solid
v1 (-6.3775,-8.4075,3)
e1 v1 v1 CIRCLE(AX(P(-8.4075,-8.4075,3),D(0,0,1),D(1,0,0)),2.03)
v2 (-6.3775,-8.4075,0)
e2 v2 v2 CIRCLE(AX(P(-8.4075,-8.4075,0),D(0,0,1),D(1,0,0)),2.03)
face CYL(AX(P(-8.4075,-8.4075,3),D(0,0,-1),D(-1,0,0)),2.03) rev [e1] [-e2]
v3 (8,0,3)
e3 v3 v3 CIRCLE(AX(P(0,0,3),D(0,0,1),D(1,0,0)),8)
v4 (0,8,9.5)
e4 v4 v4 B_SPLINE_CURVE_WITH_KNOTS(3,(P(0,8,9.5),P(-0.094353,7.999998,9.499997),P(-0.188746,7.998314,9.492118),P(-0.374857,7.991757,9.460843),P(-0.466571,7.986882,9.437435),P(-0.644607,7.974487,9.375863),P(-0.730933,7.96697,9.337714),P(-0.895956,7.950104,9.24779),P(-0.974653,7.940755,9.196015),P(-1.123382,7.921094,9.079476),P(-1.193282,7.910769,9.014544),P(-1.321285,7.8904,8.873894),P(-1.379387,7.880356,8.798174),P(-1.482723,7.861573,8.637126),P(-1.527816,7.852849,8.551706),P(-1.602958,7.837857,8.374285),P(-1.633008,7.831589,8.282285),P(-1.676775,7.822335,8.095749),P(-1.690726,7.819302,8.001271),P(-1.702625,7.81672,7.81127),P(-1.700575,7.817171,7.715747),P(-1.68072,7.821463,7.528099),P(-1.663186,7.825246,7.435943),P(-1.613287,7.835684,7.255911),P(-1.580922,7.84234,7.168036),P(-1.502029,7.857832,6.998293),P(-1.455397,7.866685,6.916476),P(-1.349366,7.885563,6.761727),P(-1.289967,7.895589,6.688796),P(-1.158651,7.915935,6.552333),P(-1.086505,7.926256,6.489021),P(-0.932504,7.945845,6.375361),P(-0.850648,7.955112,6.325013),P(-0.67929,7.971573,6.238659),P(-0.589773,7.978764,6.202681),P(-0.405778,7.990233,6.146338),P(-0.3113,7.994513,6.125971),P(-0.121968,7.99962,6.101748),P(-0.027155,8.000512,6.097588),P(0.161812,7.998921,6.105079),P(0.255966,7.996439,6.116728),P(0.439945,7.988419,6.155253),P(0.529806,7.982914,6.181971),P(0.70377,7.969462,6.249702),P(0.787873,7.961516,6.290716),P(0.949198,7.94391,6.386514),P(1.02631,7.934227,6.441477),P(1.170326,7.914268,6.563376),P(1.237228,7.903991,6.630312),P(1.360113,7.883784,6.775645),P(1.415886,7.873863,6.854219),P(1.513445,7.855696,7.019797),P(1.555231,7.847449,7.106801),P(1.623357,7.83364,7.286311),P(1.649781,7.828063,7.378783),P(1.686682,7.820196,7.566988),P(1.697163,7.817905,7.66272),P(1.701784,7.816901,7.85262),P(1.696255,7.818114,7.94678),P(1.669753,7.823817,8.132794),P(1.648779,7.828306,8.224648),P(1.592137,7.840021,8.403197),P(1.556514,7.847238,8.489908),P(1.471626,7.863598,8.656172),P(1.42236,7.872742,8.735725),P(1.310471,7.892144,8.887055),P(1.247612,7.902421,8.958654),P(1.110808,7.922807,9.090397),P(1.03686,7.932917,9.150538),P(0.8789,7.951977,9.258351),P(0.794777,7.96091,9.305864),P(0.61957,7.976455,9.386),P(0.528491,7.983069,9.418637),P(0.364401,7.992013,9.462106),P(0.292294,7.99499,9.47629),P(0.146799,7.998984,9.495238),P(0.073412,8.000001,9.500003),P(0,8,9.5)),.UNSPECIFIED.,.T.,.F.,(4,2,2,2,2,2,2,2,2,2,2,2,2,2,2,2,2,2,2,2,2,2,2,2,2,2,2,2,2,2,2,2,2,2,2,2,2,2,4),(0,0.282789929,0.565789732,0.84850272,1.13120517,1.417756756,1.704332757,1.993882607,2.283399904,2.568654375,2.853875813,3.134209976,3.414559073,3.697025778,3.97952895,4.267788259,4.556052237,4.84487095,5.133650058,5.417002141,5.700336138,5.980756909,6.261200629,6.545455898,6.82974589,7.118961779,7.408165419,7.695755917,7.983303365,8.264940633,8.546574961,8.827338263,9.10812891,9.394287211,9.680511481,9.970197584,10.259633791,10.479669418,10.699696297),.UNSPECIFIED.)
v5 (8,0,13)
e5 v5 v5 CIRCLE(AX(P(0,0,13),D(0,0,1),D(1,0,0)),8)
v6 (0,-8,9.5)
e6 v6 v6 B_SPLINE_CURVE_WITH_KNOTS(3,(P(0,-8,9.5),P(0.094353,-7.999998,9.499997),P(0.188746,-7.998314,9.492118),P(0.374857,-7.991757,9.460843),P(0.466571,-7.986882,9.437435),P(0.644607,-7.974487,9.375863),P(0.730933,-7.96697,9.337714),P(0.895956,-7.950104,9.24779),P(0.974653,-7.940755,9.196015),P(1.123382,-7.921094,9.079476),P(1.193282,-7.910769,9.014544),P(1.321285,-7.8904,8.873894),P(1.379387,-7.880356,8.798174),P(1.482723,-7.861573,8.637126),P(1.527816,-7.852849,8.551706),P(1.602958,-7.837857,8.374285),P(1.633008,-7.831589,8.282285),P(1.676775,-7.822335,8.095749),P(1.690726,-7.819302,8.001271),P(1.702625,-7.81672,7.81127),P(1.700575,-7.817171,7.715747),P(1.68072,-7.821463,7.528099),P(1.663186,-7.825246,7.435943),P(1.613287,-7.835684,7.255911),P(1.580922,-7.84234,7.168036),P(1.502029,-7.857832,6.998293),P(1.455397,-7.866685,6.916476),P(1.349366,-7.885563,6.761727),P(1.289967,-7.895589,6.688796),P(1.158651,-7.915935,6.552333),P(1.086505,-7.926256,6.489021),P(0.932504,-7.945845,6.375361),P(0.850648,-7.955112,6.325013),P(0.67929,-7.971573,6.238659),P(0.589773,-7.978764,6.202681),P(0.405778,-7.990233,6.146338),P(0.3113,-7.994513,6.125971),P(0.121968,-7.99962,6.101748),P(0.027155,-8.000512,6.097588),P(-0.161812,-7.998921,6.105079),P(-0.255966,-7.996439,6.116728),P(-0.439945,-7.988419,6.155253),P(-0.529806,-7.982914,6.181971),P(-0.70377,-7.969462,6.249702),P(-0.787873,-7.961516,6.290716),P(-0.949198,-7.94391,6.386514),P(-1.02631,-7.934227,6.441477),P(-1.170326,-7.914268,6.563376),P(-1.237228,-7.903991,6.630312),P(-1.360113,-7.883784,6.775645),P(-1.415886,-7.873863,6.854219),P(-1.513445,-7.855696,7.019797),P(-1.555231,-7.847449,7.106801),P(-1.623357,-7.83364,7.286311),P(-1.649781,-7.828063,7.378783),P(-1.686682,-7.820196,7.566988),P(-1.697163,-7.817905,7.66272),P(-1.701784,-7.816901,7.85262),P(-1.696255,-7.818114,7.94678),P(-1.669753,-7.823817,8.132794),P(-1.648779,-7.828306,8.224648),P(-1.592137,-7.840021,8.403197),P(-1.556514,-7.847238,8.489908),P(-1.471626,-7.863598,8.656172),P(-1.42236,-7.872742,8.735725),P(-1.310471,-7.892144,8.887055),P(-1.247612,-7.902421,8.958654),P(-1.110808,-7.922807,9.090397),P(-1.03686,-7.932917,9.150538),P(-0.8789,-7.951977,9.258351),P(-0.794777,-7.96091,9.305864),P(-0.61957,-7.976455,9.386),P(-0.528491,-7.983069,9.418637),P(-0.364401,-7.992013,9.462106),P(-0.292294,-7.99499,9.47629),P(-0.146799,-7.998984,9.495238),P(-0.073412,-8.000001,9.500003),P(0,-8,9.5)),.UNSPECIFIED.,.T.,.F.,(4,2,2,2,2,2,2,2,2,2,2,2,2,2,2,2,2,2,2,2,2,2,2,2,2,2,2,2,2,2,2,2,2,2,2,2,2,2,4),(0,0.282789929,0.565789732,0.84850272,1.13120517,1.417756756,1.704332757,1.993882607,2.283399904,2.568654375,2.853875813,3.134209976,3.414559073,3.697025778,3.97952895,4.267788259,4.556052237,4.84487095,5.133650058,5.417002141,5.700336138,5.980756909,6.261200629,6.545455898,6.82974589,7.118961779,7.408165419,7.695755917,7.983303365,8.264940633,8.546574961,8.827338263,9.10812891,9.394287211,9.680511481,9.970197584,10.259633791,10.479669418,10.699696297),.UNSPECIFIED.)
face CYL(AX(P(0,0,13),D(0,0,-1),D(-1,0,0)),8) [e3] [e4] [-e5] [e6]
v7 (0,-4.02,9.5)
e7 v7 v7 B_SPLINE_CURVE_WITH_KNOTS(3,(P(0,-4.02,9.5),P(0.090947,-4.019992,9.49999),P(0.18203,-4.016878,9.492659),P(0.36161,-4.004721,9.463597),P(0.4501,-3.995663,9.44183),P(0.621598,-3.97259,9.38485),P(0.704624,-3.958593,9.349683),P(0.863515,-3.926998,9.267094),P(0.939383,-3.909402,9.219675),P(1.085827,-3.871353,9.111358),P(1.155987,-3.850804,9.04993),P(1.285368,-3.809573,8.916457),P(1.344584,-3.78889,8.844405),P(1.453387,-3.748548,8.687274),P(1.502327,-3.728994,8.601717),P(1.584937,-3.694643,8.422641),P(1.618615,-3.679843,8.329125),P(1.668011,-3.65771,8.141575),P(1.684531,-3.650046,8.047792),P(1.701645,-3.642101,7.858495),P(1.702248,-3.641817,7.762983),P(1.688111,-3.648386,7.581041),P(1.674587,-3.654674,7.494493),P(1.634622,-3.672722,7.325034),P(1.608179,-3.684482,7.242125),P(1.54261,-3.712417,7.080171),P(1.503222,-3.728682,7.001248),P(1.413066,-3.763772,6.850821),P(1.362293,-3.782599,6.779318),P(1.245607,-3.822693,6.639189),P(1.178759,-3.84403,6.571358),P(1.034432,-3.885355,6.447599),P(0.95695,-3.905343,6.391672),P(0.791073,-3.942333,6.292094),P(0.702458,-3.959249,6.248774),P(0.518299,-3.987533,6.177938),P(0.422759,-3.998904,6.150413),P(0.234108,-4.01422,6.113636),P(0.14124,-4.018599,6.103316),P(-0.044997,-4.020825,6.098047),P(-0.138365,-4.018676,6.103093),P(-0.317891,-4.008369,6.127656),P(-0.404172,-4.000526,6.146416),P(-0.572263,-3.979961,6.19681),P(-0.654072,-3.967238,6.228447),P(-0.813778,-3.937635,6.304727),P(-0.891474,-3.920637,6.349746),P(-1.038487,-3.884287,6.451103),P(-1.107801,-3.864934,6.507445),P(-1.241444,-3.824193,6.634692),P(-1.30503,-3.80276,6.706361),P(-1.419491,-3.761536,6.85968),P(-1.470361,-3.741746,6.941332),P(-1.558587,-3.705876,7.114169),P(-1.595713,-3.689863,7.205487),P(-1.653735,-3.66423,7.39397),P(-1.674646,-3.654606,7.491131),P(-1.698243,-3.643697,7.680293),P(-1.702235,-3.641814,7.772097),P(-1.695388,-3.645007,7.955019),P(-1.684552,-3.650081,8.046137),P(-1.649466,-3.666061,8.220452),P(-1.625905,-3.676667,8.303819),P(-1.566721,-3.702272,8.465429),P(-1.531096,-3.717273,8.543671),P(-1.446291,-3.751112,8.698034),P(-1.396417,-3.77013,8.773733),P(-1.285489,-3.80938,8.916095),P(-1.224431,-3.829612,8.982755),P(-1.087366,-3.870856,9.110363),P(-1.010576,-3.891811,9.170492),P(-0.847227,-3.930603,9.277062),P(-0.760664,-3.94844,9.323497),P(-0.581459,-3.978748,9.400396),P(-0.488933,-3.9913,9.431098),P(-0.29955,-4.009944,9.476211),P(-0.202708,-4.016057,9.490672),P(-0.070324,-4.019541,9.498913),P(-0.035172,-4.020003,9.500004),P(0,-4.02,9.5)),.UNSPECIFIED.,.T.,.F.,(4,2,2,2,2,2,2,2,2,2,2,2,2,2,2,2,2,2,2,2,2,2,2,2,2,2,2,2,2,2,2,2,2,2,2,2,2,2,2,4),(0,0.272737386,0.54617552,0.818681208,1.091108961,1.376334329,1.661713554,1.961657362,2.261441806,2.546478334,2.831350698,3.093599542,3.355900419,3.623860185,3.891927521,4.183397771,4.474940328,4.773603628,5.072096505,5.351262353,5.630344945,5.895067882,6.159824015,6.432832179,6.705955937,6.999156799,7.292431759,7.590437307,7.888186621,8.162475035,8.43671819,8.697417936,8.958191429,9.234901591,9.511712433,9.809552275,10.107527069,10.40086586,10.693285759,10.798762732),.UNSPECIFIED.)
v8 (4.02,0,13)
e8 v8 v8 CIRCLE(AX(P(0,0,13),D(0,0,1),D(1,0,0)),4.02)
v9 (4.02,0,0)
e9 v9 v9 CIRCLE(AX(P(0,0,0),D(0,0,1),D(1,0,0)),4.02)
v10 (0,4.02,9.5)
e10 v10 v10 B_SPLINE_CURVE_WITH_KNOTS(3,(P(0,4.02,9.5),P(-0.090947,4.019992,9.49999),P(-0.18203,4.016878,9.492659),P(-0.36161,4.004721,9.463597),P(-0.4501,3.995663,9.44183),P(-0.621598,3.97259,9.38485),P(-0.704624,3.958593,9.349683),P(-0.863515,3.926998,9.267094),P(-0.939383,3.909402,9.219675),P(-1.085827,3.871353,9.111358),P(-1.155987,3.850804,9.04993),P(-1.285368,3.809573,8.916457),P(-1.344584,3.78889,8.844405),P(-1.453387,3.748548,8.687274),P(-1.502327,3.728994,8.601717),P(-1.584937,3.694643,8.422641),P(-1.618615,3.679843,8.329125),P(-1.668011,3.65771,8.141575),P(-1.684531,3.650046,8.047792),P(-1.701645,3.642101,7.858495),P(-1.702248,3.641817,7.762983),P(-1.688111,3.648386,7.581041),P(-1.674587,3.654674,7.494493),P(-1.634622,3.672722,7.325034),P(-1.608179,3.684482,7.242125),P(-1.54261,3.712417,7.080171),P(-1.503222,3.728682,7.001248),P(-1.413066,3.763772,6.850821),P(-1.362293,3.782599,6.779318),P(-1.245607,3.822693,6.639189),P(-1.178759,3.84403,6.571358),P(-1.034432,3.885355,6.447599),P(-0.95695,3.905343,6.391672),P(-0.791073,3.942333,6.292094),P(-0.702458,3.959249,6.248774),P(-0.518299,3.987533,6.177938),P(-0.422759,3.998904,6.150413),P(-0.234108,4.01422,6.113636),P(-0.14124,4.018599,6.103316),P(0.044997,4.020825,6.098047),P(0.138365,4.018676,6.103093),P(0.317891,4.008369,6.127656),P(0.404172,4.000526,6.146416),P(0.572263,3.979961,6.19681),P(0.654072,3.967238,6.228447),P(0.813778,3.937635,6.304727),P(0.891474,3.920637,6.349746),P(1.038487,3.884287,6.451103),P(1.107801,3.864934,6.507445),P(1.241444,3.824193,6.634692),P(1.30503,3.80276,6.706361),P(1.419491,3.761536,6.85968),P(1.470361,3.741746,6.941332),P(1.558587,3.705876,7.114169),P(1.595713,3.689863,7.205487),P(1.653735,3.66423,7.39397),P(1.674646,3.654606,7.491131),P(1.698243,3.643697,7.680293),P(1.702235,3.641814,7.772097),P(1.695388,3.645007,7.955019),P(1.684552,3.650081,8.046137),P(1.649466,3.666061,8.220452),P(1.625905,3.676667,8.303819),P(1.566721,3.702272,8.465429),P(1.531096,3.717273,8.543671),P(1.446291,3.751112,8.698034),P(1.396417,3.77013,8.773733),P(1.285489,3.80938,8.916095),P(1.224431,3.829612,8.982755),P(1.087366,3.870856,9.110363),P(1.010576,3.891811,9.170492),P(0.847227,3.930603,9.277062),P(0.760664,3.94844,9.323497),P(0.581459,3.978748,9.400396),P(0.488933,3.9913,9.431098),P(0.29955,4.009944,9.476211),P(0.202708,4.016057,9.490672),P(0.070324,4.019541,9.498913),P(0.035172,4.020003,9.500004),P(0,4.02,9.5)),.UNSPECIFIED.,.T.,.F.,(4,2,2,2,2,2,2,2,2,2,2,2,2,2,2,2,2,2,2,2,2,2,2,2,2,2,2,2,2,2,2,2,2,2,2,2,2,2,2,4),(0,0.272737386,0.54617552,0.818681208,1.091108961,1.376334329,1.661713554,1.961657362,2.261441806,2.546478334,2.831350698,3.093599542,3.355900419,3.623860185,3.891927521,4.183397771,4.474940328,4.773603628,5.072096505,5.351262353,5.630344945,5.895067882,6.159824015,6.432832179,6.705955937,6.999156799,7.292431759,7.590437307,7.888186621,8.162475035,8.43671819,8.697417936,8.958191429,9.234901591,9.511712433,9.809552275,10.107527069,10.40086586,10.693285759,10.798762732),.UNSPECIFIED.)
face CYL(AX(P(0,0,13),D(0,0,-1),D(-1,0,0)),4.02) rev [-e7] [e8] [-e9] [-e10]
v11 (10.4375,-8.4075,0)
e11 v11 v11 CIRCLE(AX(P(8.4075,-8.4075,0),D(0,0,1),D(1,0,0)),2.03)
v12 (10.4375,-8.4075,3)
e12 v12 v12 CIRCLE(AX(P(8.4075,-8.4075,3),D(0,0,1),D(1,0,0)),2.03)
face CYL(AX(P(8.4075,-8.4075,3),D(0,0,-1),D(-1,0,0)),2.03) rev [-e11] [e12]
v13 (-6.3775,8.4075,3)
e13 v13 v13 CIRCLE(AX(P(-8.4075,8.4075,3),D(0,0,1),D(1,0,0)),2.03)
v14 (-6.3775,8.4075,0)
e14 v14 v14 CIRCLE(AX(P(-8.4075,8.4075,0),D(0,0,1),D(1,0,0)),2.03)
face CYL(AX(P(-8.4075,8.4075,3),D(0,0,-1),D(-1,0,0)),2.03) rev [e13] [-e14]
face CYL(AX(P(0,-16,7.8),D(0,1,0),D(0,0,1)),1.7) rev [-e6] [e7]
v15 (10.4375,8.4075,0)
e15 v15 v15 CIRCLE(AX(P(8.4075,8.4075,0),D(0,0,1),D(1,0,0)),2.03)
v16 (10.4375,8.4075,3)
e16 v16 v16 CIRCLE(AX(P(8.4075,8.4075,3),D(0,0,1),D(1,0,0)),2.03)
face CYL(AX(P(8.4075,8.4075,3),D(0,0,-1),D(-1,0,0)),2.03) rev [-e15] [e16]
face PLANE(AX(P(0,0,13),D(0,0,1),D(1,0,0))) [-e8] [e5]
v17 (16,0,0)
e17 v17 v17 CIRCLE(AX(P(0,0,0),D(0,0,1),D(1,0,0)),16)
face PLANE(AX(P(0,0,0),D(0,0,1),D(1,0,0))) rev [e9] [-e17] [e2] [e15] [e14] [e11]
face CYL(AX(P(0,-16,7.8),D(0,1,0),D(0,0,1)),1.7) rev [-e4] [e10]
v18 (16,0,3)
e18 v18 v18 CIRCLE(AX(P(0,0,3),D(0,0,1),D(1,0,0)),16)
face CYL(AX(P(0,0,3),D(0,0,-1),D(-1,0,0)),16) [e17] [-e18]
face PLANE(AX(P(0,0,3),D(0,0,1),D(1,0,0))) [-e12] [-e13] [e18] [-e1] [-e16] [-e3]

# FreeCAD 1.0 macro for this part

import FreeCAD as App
import Part
import Sketcher
from FreeCAD import Vector

doc = App.newDocument("Part")
body = doc.addObject("PartDesign::Body", "Body")

sketch1 = body.newObject("Sketcher::SketchObject", "Sketch")
sketch1.AttachmentSupport = (doc.getObject("XY_Plane"), [""])
sketch1.MapMode = "FlatFace"
sketch1.addGeometry([
    Part.Circle(Vector(0, 0, 0), Vector(0, 0, 1), 16),
    Part.Circle(Vector(-8.4075, -8.4075, 0), Vector(0, 0, 1), 2.03),
    Part.Circle(Vector(8.4075, -8.4075, 0), Vector(0, 0, 1), 2.03),
    Part.Circle(Vector(-8.4075, 8.4075, 0), Vector(0, 0, 1), 2.03),
    Part.Circle(Vector(8.4075, 8.4075, 0), Vector(0, 0, 1), 2.03),
], False)
sketch1.addConstraint([
    Sketcher.Constraint("Coincident", 0, 3, -1, 1),
    Sketcher.Constraint("Equal", 1, 2),
    Sketcher.Constraint("Equal", 2, 3),
    Sketcher.Constraint("Equal", 3, 4),
    Sketcher.Constraint("Symmetric", 2, 3, 3, 3, -1, 1),
    Sketcher.Constraint("Symmetric", 1, 3, 4, 3, -1, 1),
    Sketcher.Constraint("Symmetric", 1, 3, 2, 3, -2),
    Sketcher.Constraint("Diameter", 0, 32.0),
    Sketcher.Constraint("Diameter", 1, 4.06),
    Sketcher.Constraint("DistanceX", 1, 3, 2, 3, 16.814999),
    Sketcher.Constraint("DistanceY", 1, 3, 3, 3, 16.814999),
])
pad1 = body.newObject("PartDesign::Pad", "Pad")
pad1.Profile = sketch1
pad1.Length = 3

sketch2 = body.newObject("Sketcher::SketchObject", "Sketch001")
sketch2.AttachmentSupport = (doc.getObject("XY_Plane"), [""])
sketch2.MapMode = "FlatFace"
sketch2.AttachmentOffset = App.Placement(Vector(0, 0, 3), App.Rotation())
sketch2.addGeometry([
    Part.Circle(Vector(0, 0, 0), Vector(0, 0, 1), 8),
    Part.Circle(Vector(0, 0, 0), Vector(0, 0, 1), 4.02),
], False)
sketch2.addConstraint([
    Sketcher.Constraint("Coincident", 0, 3, -1, 1),
    Sketcher.Constraint("Coincident", 1, 3, -1, 1),
    Sketcher.Constraint("Diameter", 0, 16.0),
    Sketcher.Constraint("Diameter", 1, 8.04),
])
pad2 = body.newObject("PartDesign::Pad", "Pad001")
pad2.Profile = sketch2
pad2.Length = 10

sketch3 = body.newObject("Sketcher::SketchObject", "Sketch002")
sketch3.AttachmentSupport = (doc.getObject("XY_Plane"), [""])
sketch3.MapMode = "FlatFace"
sketch3.AttachmentOffset = App.Placement(Vector(0, 0, 13), App.Rotation())
sketch3.addGeometry(Part.Circle(Vector(0, 0, 0), Vector(0, 0, 1), 4.02), False)
sketch3.addConstraint([
    Sketcher.Constraint("Coincident", 0, 3, -1, 1),
    Sketcher.Constraint("Diameter", 0, 8.04),
])
pocket1 = body.newObject("PartDesign::Pocket", "Pocket")
pocket1.Profile = sketch3
pocket1.Type = "ThroughAll"

sketch4 = body.newObject("Sketcher::SketchObject", "Sketch003")
sketch4.AttachmentSupport = (doc.getObject("XZ_Plane"), [""])
sketch4.MapMode = "FlatFace"
sketch4.addGeometry(Part.Circle(Vector(0, 7.8, 0), Vector(0, 0, 1), 1.7), False)
sketch4.addConstraint([
    Sketcher.Constraint("PointOnObject", 0, 3, -2),
    Sketcher.Constraint("Diameter", 0, 3.4),
    Sketcher.Constraint("DistanceY", -1, 1, 0, 3, 7.8),
])
pocket2 = body.newObject("PartDesign::Pocket", "Pocket001")
pocket2.Profile = sketch4
pocket2.Type = "ThroughAll"
pocket2.Midplane = True

doc.recompute()
